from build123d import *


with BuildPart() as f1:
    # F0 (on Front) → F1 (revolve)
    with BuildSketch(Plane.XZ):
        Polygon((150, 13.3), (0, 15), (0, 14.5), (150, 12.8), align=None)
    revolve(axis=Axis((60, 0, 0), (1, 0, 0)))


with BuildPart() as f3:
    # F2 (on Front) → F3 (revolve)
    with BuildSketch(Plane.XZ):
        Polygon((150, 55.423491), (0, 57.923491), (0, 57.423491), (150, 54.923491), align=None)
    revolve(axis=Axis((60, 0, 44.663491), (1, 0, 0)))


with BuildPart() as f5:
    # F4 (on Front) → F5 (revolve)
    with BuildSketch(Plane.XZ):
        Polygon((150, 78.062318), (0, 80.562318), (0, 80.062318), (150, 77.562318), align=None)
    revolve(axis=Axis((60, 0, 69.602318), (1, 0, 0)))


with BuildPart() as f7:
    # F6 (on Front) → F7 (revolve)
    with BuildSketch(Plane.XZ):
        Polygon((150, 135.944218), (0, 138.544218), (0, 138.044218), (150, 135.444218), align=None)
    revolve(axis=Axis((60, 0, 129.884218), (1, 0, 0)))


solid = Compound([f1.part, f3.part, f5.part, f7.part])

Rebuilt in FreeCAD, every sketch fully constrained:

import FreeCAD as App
import Part
import Sketcher

V = App.Vector


def add_polygon(sketch, points):
    """Adds a closed chain of lines whose ends are joined by coincident constraints."""
    first, n = sketch.GeometryCount, len(points)
    for a, b in zip(points, points[1:] + points[:1]):
        sketch.addGeometry(Part.LineSegment(App.Vector(*a, 0), App.Vector(*b, 0)), False)
    for i in range(n):
        sketch.addConstraint(Sketcher.Constraint("Coincident", first + i, 2, first + (i + 1) % n, 1))

doc = App.newDocument("Part")
body = doc.addObject("PartDesign::Body", "Body")

sketch1 = body.newObject("Sketcher::SketchObject", "Sketch")
sketch1.AttachmentSupport = (doc.getObject("XZ_Plane"), [""])
sketch1.MapMode = "FlatFace"
add_polygon(sketch1, [(150, 13.3), (0, 15), (0, 14.5), (150, 12.8)])
sketch1.addConstraint(Sketcher.Constraint("Vertical", 1))
sketch1.addConstraint(Sketcher.Constraint("Vertical", 3))
sketch1.addConstraint(Sketcher.Constraint("PointOnObject", 0, 2, -2))
sketch1.addConstraint(Sketcher.Constraint("Parallel", 0, 2))
sketch1.addConstraint(Sketcher.Constraint("DistanceY", 1, 2, 1, 1, 0.5))
sketch1.addConstraint(Sketcher.Constraint("DistanceY", -1, 1, 0, 2, 15.0))
sketch1.addConstraint(Sketcher.Constraint("DistanceX", -1, 1, 2, 2, 150.0))
sketch1.addConstraint(Sketcher.Constraint("DistanceY", -1, 1, 2, 2, 12.8))
revolution = body.newObject("PartDesign::Revolution", "Revolution")
revolution.Profile = sketch1
revolution.ReferenceAxis = (sketch1, ["H_Axis"])
revolution.Angle = 360
body2 = doc.addObject("PartDesign::Body", "Body001")

sketch2 = body2.newObject("Sketcher::SketchObject", "Sketch001")
sketch2.AttachmentSupport = (doc.getObject("XZ_Plane001"), [""])
sketch2.MapMode = "FlatFace"
add_polygon(sketch2, [(150, 55.4), (0, 57.9), (0, 57.4), (150, 54.9)])
sketch2.addGeometry(Part.LineSegment(V(0, 44.7, 0), V(150, 44.7, 0)), True)
sketch2.addConstraint(Sketcher.Constraint("Vertical", 1))
sketch2.addConstraint(Sketcher.Constraint("Vertical", 3))
sketch2.addConstraint(Sketcher.Constraint("Horizontal", 4))
sketch2.addConstraint(Sketcher.Constraint("PointOnObject", 0, 2, -2))
sketch2.addConstraint(Sketcher.Constraint("PointOnObject", 4, 1, -2))
sketch2.addConstraint(Sketcher.Constraint("Parallel", 0, 2))
sketch2.addConstraint(Sketcher.Constraint("Vertical", 3, 2, 4, 2))
sketch2.addConstraint(Sketcher.Constraint("DistanceX", 4, 1, 4, 2, 150.0))
sketch2.addConstraint(Sketcher.Constraint("DistanceY", 1, 2, 1, 1, 0.5))
sketch2.addConstraint(Sketcher.Constraint("DistanceY", 2, 2, 0, 2, 3.0))
sketch2.addConstraint(Sketcher.Constraint("DistanceY", 4, 1, 1, 2, 12.76))
sketch2.addConstraint(Sketcher.Constraint("DistanceY", -1, 1, 0, 2, 57.923491))
revolution2 = body2.newObject("PartDesign::Revolution", "Revolution001")
revolution2.Profile = sketch2
revolution2.ReferenceAxis = (sketch2, ["Axis0"])
revolution2.Angle = 360
body3 = doc.addObject("PartDesign::Body", "Body002")

sketch3 = body3.newObject("Sketcher::SketchObject", "Sketch002")
sketch3.AttachmentSupport = (doc.getObject("XZ_Plane002"), [""])
sketch3.MapMode = "FlatFace"
add_polygon(sketch3, [(150, 78.1), (0, 80.6), (0, 80.1), (150, 77.6)])
sketch3.addGeometry(Part.LineSegment(V(0, 69.6, 0), V(150, 69.6, 0)), True)
sketch3.addConstraint(Sketcher.Constraint("Vertical", 1))
sketch3.addConstraint(Sketcher.Constraint("Vertical", 3))
sketch3.addConstraint(Sketcher.Constraint("Horizontal", 4))
sketch3.addConstraint(Sketcher.Constraint("PointOnObject", 0, 2, -2))
sketch3.addConstraint(Sketcher.Constraint("PointOnObject", 4, 1, -2))
sketch3.addConstraint(Sketcher.Constraint("Parallel", 0, 2))
sketch3.addConstraint(Sketcher.Constraint("Vertical", 3, 2, 4, 2))
sketch3.addConstraint(Sketcher.Constraint("DistanceX", 4, 1, 4, 2, 150.0))
sketch3.addConstraint(Sketcher.Constraint("DistanceY", 1, 2, 1, 1, 0.5))
sketch3.addConstraint(Sketcher.Constraint("DistanceY", 2, 2, 0, 2, 3.0))
sketch3.addConstraint(Sketcher.Constraint("DistanceY", 4, 1, 1, 2, 10.46))
sketch3.addConstraint(Sketcher.Constraint("DistanceY", -1, 1, 0, 2, 80.562318))
revolution3 = body3.newObject("PartDesign::Revolution", "Revolution002")
revolution3.Profile = sketch3
revolution3.ReferenceAxis = (sketch3, ["Axis0"])
revolution3.Angle = 360
body4 = doc.addObject("PartDesign::Body", "Body003")

sketch4 = body4.newObject("Sketcher::SketchObject", "Sketch003")
sketch4.AttachmentSupport = (doc.getObject("XZ_Plane003"), [""])
sketch4.MapMode = "FlatFace"
add_polygon(sketch4, [(150, 135.9), (0, 138.5), (0, 138), (150, 135.4)])
sketch4.addGeometry(Part.LineSegment(V(0, 129.9, 0), V(150, 129.9, 0)), True)
sketch4.addConstraint(Sketcher.Constraint("Vertical", 1))
sketch4.addConstraint(Sketcher.Constraint("Vertical", 3))
sketch4.addConstraint(Sketcher.Constraint("Horizontal", 4))
sketch4.addConstraint(Sketcher.Constraint("PointOnObject", 0, 2, -2))
sketch4.addConstraint(Sketcher.Constraint("PointOnObject", 4, 1, -2))
sketch4.addConstraint(Sketcher.Constraint("Parallel", 0, 2))
sketch4.addConstraint(Sketcher.Constraint("Vertical", 3, 2, 4, 2))
sketch4.addConstraint(Sketcher.Constraint("DistanceX", 4, 1, 4, 2, 150.0))
sketch4.addConstraint(Sketcher.Constraint("DistanceY", 1, 2, 1, 1, 0.5))
sketch4.addConstraint(Sketcher.Constraint("DistanceY", 2, 2, 1, 2, 2.6))
sketch4.addConstraint(Sketcher.Constraint("DistanceY", 4, 1, 1, 2, 8.16))
sketch4.addConstraint(Sketcher.Constraint("DistanceY", -1, 1, 0, 2, 138.544218))
revolution4 = body4.newObject("PartDesign::Revolution", "Revolution003")
revolution4.Profile = sketch4
revolution4.ReferenceAxis = (sketch4, ["Axis0"])
revolution4.Angle = 360

doc.recompute()
